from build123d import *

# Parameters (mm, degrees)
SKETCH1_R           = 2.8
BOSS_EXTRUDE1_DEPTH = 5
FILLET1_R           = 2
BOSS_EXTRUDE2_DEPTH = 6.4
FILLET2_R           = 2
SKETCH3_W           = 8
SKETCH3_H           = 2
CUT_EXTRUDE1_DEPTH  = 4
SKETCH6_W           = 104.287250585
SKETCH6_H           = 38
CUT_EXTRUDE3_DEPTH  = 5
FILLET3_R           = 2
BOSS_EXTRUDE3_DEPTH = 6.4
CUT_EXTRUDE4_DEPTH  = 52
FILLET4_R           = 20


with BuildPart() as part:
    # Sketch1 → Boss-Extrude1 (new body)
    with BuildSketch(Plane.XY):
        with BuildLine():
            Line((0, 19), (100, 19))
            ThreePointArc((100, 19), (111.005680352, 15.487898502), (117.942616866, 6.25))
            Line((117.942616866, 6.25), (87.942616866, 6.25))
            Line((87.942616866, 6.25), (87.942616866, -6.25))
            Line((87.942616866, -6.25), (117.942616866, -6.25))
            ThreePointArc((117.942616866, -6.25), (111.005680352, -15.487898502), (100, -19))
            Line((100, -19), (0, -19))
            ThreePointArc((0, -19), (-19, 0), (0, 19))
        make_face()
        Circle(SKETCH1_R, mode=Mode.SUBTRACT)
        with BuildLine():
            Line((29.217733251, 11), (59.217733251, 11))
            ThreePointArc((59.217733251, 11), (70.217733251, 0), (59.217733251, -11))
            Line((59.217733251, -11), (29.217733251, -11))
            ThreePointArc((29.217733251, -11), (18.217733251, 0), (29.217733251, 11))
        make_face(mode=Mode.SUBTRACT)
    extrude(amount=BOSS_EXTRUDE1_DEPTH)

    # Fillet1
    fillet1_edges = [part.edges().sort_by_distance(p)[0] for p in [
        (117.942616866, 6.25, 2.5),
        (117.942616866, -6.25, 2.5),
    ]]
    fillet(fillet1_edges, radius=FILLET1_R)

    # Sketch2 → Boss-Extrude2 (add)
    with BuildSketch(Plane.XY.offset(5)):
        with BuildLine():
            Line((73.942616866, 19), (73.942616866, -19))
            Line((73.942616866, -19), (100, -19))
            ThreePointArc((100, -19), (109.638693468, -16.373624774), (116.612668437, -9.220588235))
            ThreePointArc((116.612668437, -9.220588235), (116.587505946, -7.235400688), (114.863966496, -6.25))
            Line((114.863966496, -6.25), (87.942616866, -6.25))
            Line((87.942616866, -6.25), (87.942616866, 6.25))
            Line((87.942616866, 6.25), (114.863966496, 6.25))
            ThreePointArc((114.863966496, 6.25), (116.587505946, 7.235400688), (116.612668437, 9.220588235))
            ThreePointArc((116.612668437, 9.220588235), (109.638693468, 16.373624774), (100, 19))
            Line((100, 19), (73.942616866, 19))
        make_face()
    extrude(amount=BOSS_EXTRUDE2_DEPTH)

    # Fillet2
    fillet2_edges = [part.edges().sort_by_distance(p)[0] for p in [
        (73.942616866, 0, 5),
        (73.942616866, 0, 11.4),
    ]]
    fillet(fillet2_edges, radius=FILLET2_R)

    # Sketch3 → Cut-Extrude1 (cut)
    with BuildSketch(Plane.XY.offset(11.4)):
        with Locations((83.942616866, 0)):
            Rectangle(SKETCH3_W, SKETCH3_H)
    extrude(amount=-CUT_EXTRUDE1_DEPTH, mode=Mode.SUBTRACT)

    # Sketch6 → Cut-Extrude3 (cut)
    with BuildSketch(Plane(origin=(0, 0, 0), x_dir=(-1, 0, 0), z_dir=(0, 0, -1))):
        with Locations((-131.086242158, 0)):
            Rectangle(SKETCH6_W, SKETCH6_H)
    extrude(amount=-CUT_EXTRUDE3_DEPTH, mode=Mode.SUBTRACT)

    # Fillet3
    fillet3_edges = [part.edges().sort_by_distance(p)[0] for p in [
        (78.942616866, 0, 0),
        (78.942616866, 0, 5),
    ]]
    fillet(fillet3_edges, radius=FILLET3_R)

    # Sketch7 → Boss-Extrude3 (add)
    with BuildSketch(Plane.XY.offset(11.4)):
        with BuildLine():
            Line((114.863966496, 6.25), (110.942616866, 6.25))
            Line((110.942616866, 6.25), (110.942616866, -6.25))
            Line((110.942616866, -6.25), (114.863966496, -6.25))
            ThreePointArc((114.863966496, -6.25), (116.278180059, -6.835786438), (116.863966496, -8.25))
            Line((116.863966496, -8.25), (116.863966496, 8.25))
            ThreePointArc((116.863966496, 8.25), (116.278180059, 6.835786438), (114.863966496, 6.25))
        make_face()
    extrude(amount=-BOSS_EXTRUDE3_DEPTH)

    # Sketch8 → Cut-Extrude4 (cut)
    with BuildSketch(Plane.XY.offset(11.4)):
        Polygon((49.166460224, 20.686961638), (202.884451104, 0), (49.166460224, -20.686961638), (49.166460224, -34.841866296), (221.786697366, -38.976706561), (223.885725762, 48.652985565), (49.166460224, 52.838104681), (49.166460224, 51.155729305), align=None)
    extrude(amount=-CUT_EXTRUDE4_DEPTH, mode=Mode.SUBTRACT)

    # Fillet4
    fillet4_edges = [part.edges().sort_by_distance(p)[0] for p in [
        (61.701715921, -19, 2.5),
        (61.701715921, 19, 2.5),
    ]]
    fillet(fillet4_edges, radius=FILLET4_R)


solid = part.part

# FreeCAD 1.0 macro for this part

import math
import FreeCAD as App
import Part
import Sketcher

V = App.Vector
Q = App.Units.Quantity


def edges_at(feature, points):
    """Names of the edges that pass closest to the given points."""
    edges = feature.Shape.Edges
    near = lambda p: min(range(len(edges)), key=lambda i: edges[i].distToShape(Part.Vertex(*p))[0])
    return sorted({f"Edge{near(p) + 1}" for p in points})

doc = App.newDocument("Part")
params = doc.addObject("Spreadsheet::Sheet", "Params")
for row, (alias, value) in enumerate([
    ("sketch1_radius", "19 mm"),
    ("sketch1_radius2", "11 mm"),
    ("sketch1_diameter", "5.6 mm"),
    ("sketch1_width", "100 mm"),
    ("sketch1_width2", "30 mm"),
    ("pad1_length", "5 mm"),
    ("fillet_radius", "2 mm"),
    ("sketch2_radius", "19 mm"),
    ("sketch2_radius2", "2 mm"),
    ("sketch2_height", "12.5 mm"),
    ("pad2_length", "6.4 mm"),
    ("fillet2_radius", "2 mm"),
    ("sketch3_width", "8 mm"),
    ("sketch3_height", "2 mm"),
    ("pocket1_length", "4 mm"),
    ("sketch4_height", "38 mm"),
    ("pocket2_length", "5 mm"),
    ("fillet3_radius", "2 mm"),
    ("sketch5_radius", "2 mm"),
    ("sketch5_height", "12.5 mm"),
    ("pad3_length", "6.4 mm"),
    ("pocket3_length", "52 mm"),
    ("fillet4_radius", "20 mm"),
], start=1):
    params.set(f"A{row}", alias)
    params.set(f"B{row}", "=" + value)
    params.setAlias(f"B{row}", alias)

body = doc.addObject("PartDesign::Body", "Body")

sketch1 = doc.addObject("Sketcher::SketchObject", "Sketch")
body.addObject(sketch1)
sketch1.AttachmentSupport = (doc.XY_Plane, [""])
sketch1.MapMode = "FlatFace"
sketch1.addGeometry(Part.LineSegment(V(100, 19, 0), V(0, 19, 0)), False)
sketch1.addGeometry(Part.ArcOfCircle(Part.Circle(V(0, 0, 0), V(0, 0, 1), 19), math.radians(90), math.radians(270)), False)
sketch1.addGeometry(Part.LineSegment(V(0, -19, 0), V(100, -19, 0)), False)
sketch1.addGeometry(Part.ArcOfCircle(Part.Circle(V(100, 0, 0), V(0, 0, 1), 19), math.radians(-90), math.radians(-19.204897)), False)
sketch1.addGeometry(Part.LineSegment(V(117.942617, -6.25, 0), V(87.942617, -6.25, 0)), False)
sketch1.addGeometry(Part.LineSegment(V(87.942617, -6.25, 0), V(87.942617, 6.25, 0)), False)
sketch1.addGeometry(Part.LineSegment(V(87.942617, 6.25, 0), V(117.942617, 6.25, 0)), False)
sketch1.addGeometry(Part.ArcOfCircle(Part.Circle(V(100, 0, 0), V(0, 0, 1), 19), math.radians(19.204897), math.radians(90)), False)
sketch1.addGeometry(Part.LineSegment(V(29.217733, 11, 0), V(59.217733, 11, 0)), False)
sketch1.addGeometry(Part.ArcOfCircle(Part.Circle(V(59.217733, 0, 0), V(0, 0, 1), 11), math.radians(-90), math.radians(90)), False)
sketch1.addGeometry(Part.LineSegment(V(59.217733, -11, 0), V(29.217733, -11, 0)), False)
sketch1.addGeometry(Part.ArcOfCircle(Part.Circle(V(29.217733, 0, 0), V(0, 0, 1), 11), math.radians(90), math.radians(270)), False)
sketch1.addGeometry(Part.Circle(V(0, 0, 0), V(0, 0, 1), 2.8), False)
sketch1.addConstraint(Sketcher.Constraint("Tangent", 0, 2, 1, 1))
sketch1.addConstraint(Sketcher.Constraint("Tangent", 1, 2, 2, 1))
sketch1.addConstraint(Sketcher.Constraint("Tangent", 2, 2, 3, 1))
sketch1.addConstraint(Sketcher.Constraint("Coincident", 3, 2, 4, 1))
sketch1.addConstraint(Sketcher.Constraint("Coincident", 4, 2, 5, 1))
sketch1.addConstraint(Sketcher.Constraint("Coincident", 5, 2, 6, 1))
sketch1.addConstraint(Sketcher.Constraint("Coincident", 6, 2, 7, 1))
sketch1.addConstraint(Sketcher.Constraint("Tangent", 7, 2, 0, 1))
sketch1.addConstraint(Sketcher.Constraint("Tangent", 8, 2, 9, 2))
sketch1.addConstraint(Sketcher.Constraint("Tangent", 9, 1, 10, 1))
sketch1.addConstraint(Sketcher.Constraint("Tangent", 10, 2, 11, 2))
sketch1.addConstraint(Sketcher.Constraint("Tangent", 11, 1, 8, 1))
sketch1.addConstraint(Sketcher.Constraint("Horizontal", 0))
sketch1.addConstraint(Sketcher.Constraint("Horizontal", 2))
sketch1.addConstraint(Sketcher.Constraint("Horizontal", 4))
sketch1.addConstraint(Sketcher.Constraint("Vertical", 5))
sketch1.addConstraint(Sketcher.Constraint("Horizontal", 6))
sketch1.addConstraint(Sketcher.Constraint("Horizontal", 8))
sketch1.addConstraint(Sketcher.Constraint("Horizontal", 10))
sketch1.addConstraint(Sketcher.Constraint("Coincident", 1, 3, -1, 1))
sketch1.addConstraint(Sketcher.Constraint("Coincident", 12, 3, -1, 1))
sketch1.addConstraint(Sketcher.Constraint("Coincident", 7, 3, 3, 3))
sketch1.addConstraint(Sketcher.Constraint("Equal", 1, 3))
sketch1.addConstraint(Sketcher.Constraint("PointOnObject", 9, 3, -1))
sketch1.addConstraint(Sketcher.Constraint("Vertical", 3, 2, 6, 2))
sketch1.addConstraint(Sketcher.Constraint("Equal", 6, 8))
sketch1.addConstraint(Sketcher.Constraint("Radius", 1, Q("19 mm")))
sketch1.addConstraint(Sketcher.Constraint("Radius", 9, Q("11 mm")))
sketch1.addConstraint(Sketcher.Constraint("Diameter", 12, Q("5.6 mm")))
sketch1.addConstraint(Sketcher.Constraint("DistanceX", 0, 2, 0, 1, Q("100 mm")))
sketch1.addConstraint(Sketcher.Constraint("DistanceX", 4, 2, 4, 1, Q("30 mm")))
sketch1.addConstraint(Sketcher.Constraint("DistanceY", 5, 1, 5, 2, Q("12.5 mm")))
sketch1.addConstraint(Sketcher.Constraint("DistanceX", -1, 1, 9, 3, Q("59.217733 mm")))
sketch1.setExpression("Constraints[26]", "Params.sketch1_radius")
sketch1.setExpression("Constraints[27]", "Params.sketch1_radius2")
sketch1.setExpression("Constraints[28]", "Params.sketch1_diameter")
sketch1.setExpression("Constraints[29]", "Params.sketch1_width")
sketch1.setExpression("Constraints[30]", "Params.sketch1_width2")
pad1 = doc.addObject("PartDesign::Pad", "Pad")
body.addObject(pad1)
pad1.Profile = sketch1
pad1.setExpression("Length", "Params.pad1_length")
doc.recompute()

fillet = doc.addObject("PartDesign::Fillet", "Fillet")
body.addObject(fillet)
fillet.Base = (pad1, edges_at(pad1, [(117.943, 6.25, 2.5), (117.943, -6.25, 2.5)]))
fillet.setExpression("Radius", "Params.fillet_radius")

sketch2 = doc.addObject("Sketcher::SketchObject", "Sketch001")
body.addObject(sketch2)
sketch2.AttachmentSupport = (doc.XY_Plane, [""])
sketch2.MapMode = "FlatFace"
sketch2.AttachmentOffset = App.Placement(V(0, 0, 5), App.Rotation())
sketch2.addGeometry(Part.LineSegment(V(73.942617, 19, 0), V(73.942617, -19, 0)), False)
sketch2.addGeometry(Part.LineSegment(V(73.942617, -19, 0), V(100, -19, 0)), False)
sketch2.addGeometry(Part.ArcOfCircle(Part.Circle(V(100, 0, 0), V(0, 0, 1), 19), math.radians(-90), math.radians(-29.031744)), False)
sketch2.addGeometry(Part.ArcOfCircle(Part.Circle(V(114.863966, -8.25, 0), V(0, 0, 1), 2), math.radians(-29.031744), math.radians(90)), False)
sketch2.addGeometry(Part.LineSegment(V(114.863966, -6.25, 0), V(87.942617, -6.25, 0)), False)
sketch2.addGeometry(Part.LineSegment(V(87.942617, -6.25, 0), V(87.942617, 6.25, 0)), False)
sketch2.addGeometry(Part.LineSegment(V(87.942617, 6.25, 0), V(114.863966, 6.25, 0)), False)
sketch2.addGeometry(Part.ArcOfCircle(Part.Circle(V(114.863966, 8.25, 0), V(0, 0, 1), 2), math.radians(-90), math.radians(29.031744)), False)
sketch2.addGeometry(Part.ArcOfCircle(Part.Circle(V(100, 0, 0), V(0, 0, 1), 19), math.radians(29.031744), math.radians(90)), False)
sketch2.addGeometry(Part.LineSegment(V(100, 19, 0), V(73.942617, 19, 0)), False)
sketch2.addConstraint(Sketcher.Constraint("Coincident", 0, 2, 1, 1))
sketch2.addConstraint(Sketcher.Constraint("Tangent", 1, 2, 2, 1))
sketch2.addConstraint(Sketcher.Constraint("Tangent", 2, 2, 3, 1))
sketch2.addConstraint(Sketcher.Constraint("Tangent", 3, 2, 4, 1))
sketch2.addConstraint(Sketcher.Constraint("Coincident", 4, 2, 5, 1))
sketch2.addConstraint(Sketcher.Constraint("Coincident", 5, 2, 6, 1))
sketch2.addConstraint(Sketcher.Constraint("Tangent", 6, 2, 7, 1))
sketch2.addConstraint(Sketcher.Constraint("Tangent", 7, 2, 8, 1))
sketch2.addConstraint(Sketcher.Constraint("Tangent", 8, 2, 9, 1))
sketch2.addConstraint(Sketcher.Constraint("Coincident", 9, 2, 0, 1))
sketch2.addConstraint(Sketcher.Constraint("Vertical", 0))
sketch2.addConstraint(Sketcher.Constraint("Horizontal", 1))
sketch2.addConstraint(Sketcher.Constraint("Horizontal", 4))
sketch2.addConstraint(Sketcher.Constraint("Vertical", 5))
sketch2.addConstraint(Sketcher.Constraint("Horizontal", 6))
sketch2.addConstraint(Sketcher.Constraint("Horizontal", 9))
sketch2.addConstraint(Sketcher.Constraint("Coincident", 8, 3, 2, 3))
sketch2.addConstraint(Sketcher.Constraint("Equal", 3, 7))
sketch2.addConstraint(Sketcher.Constraint("Equal", 2, 8))
sketch2.addConstraint(Sketcher.Constraint("Symmetric", 3, 3, 7, 3, -1))
sketch2.addConstraint(Sketcher.Constraint("Radius", 2, Q("19 mm")))
sketch2.addConstraint(Sketcher.Constraint("Radius", 3, Q("2 mm")))
sketch2.addConstraint(Sketcher.Constraint("DistanceY", 5, 1, 5, 2, Q("12.5 mm")))
sketch2.addConstraint(Sketcher.Constraint("DistanceX", -1, 1, 2, 3, Q("100 mm")))
sketch2.addConstraint(Sketcher.Constraint("DistanceX", 0, 2, 4, 2, Q("14 mm")))
sketch2.addConstraint(Sketcher.Constraint("DistanceX", 4, 2, 4, 1, Q("26.92135 mm")))
sketch2.setExpression("Constraints[20]", "Params.sketch2_radius")
sketch2.setExpression("Constraints[21]", "Params.sketch2_radius2")
sketch2.setExpression("Constraints[22]", "Params.sketch2_height")
pad2 = doc.addObject("PartDesign::Pad", "Pad001")
body.addObject(pad2)
pad2.Profile = sketch2
pad2.setExpression("Length", "Params.pad2_length")
doc.recompute()

fillet2 = doc.addObject("PartDesign::Fillet", "Fillet001")
body.addObject(fillet2)
fillet2.Base = (pad2, edges_at(pad2, [(73.943, 0, 5), (73.943, 0, 11.4)]))
fillet2.setExpression("Radius", "Params.fillet2_radius")

sketch3 = doc.addObject("Sketcher::SketchObject", "Sketch002")
body.addObject(sketch3)
sketch3.AttachmentSupport = (doc.XY_Plane, [""])
sketch3.MapMode = "FlatFace"
sketch3.AttachmentOffset = App.Placement(V(0, 0, 11.4), App.Rotation())
sketch3.addGeometry(Part.LineSegment(V(79.942617, 1, 0), V(79.942617, -1, 0)), False)
sketch3.addGeometry(Part.LineSegment(V(79.942617, -1, 0), V(87.942617, -1, 0)), False)
sketch3.addGeometry(Part.LineSegment(V(87.942617, -1, 0), V(87.942617, 1, 0)), False)
sketch3.addGeometry(Part.LineSegment(V(87.942617, 1, 0), V(79.942617, 1, 0)), False)
sketch3.addConstraint(Sketcher.Constraint("Coincident", 0, 2, 1, 1))
sketch3.addConstraint(Sketcher.Constraint("Coincident", 1, 2, 2, 1))
sketch3.addConstraint(Sketcher.Constraint("Coincident", 2, 2, 3, 1))
sketch3.addConstraint(Sketcher.Constraint("Coincident", 3, 2, 0, 1))
sketch3.addConstraint(Sketcher.Constraint("Vertical", 0))
sketch3.addConstraint(Sketcher.Constraint("Horizontal", 1))
sketch3.addConstraint(Sketcher.Constraint("Vertical", 2))
sketch3.addConstraint(Sketcher.Constraint("Horizontal", 3))
sketch3.addConstraint(Sketcher.Constraint("DistanceX", 1, 1, 1, 2, Q("8 mm")))
sketch3.addConstraint(Sketcher.Constraint("DistanceY", 0, 2, 0, 1, Q("2 mm")))
sketch3.addConstraint(Sketcher.Constraint("DistanceY", 0, 2, -1, 1, Q("1 mm")))
sketch3.addConstraint(Sketcher.Constraint("DistanceX", -1, 1, 0, 2, Q("79.942617 mm")))
sketch3.setExpression("Constraints[8]", "Params.sketch3_width")
sketch3.setExpression("Constraints[9]", "Params.sketch3_height")
pocket1 = doc.addObject("PartDesign::Pocket", "Pocket")
body.addObject(pocket1)
pocket1.Profile = sketch3
pocket1.setExpression("Length", "Params.pocket1_length")

sketch4 = doc.addObject("Sketcher::SketchObject", "Sketch003")
body.addObject(sketch4)
sketch4.AttachmentSupport = (doc.XY_Plane, [""])
sketch4.MapMode = "FlatFace"
sketch4.addGeometry(Part.LineSegment(V(183.229867, 19, 0), V(183.229867, -19, 0)), False)
sketch4.addGeometry(Part.LineSegment(V(183.229867, -19, 0), V(78.942617, -19, 0)), False)
sketch4.addGeometry(Part.LineSegment(V(78.942617, -19, 0), V(78.942617, 19, 0)), False)
sketch4.addGeometry(Part.LineSegment(V(78.942617, 19, 0), V(183.229867, 19, 0)), False)
sketch4.addConstraint(Sketcher.Constraint("Coincident", 0, 2, 1, 1))
sketch4.addConstraint(Sketcher.Constraint("Coincident", 1, 2, 2, 1))
sketch4.addConstraint(Sketcher.Constraint("Coincident", 2, 2, 3, 1))
sketch4.addConstraint(Sketcher.Constraint("Coincident", 3, 2, 0, 1))
sketch4.addConstraint(Sketcher.Constraint("Vertical", 0))
sketch4.addConstraint(Sketcher.Constraint("Horizontal", 1))
sketch4.addConstraint(Sketcher.Constraint("Vertical", 2))
sketch4.addConstraint(Sketcher.Constraint("Horizontal", 3))
sketch4.addConstraint(Sketcher.Constraint("DistanceY", 0, 2, 0, 1, Q("38 mm")))
sketch4.addConstraint(Sketcher.Constraint("DistanceY", 0, 2, -1, 1, Q("19 mm")))
sketch4.addConstraint(Sketcher.Constraint("DistanceX", 1, 2, 1, 1, Q("104.287251 mm")))
sketch4.addConstraint(Sketcher.Constraint("DistanceX", -1, 1, 0, 2, Q("183.229867 mm")))
sketch4.setExpression("Constraints[8]", "Params.sketch4_height")
pocket2 = doc.addObject("PartDesign::Pocket", "Pocket001")
body.addObject(pocket2)
pocket2.Profile = sketch4
pocket2.setExpression("Length", "Params.pocket2_length")
pocket2.Reversed = True
doc.recompute()

fillet3 = doc.addObject("PartDesign::Fillet", "Fillet002")
body.addObject(fillet3)
fillet3.Base = (pocket2, edges_at(pocket2, [(78.943, 0, 0), (78.943, 0, 5)]))
fillet3.setExpression("Radius", "Params.fillet3_radius")

sketch5 = doc.addObject("Sketcher::SketchObject", "Sketch004")
body.addObject(sketch5)
sketch5.AttachmentSupport = (doc.XY_Plane, [""])
sketch5.MapMode = "FlatFace"
sketch5.AttachmentOffset = App.Placement(V(0, 0, 11.4), App.Rotation())
sketch5.addGeometry(Part.LineSegment(V(114.863966, 6.25, 0), V(110.942617, 6.25, 0)), False)
sketch5.addGeometry(Part.LineSegment(V(110.942617, 6.25, 0), V(110.942617, -6.25, 0)), False)
sketch5.addGeometry(Part.LineSegment(V(110.942617, -6.25, 0), V(114.863966, -6.25, 0)), False)
sketch5.addGeometry(Part.ArcOfCircle(Part.Circle(V(114.863966, -8.25, 0), V(0, 0, 1), 2), math.radians(0), math.radians(90)), False)
sketch5.addGeometry(Part.LineSegment(V(116.863966, -8.25, 0), V(116.863966, 8.25, 0)), False)
sketch5.addGeometry(Part.ArcOfCircle(Part.Circle(V(114.863966, 8.25, 0), V(0, 0, 1), 2), math.radians(-90), math.radians(0)), False)
sketch5.addConstraint(Sketcher.Constraint("Coincident", 0, 2, 1, 1))
sketch5.addConstraint(Sketcher.Constraint("Coincident", 1, 2, 2, 1))
sketch5.addConstraint(Sketcher.Constraint("Tangent", 2, 2, 3, 2))
sketch5.addConstraint(Sketcher.Constraint("Tangent", 3, 1, 4, 1))
sketch5.addConstraint(Sketcher.Constraint("Tangent", 4, 2, 5, 2))
sketch5.addConstraint(Sketcher.Constraint("Tangent", 5, 1, 0, 1))
sketch5.addConstraint(Sketcher.Constraint("Horizontal", 0))
sketch5.addConstraint(Sketcher.Constraint("Vertical", 1))
sketch5.addConstraint(Sketcher.Constraint("Horizontal", 2))
sketch5.addConstraint(Sketcher.Constraint("Vertical", 4))
sketch5.addConstraint(Sketcher.Constraint("Equal", 3, 5))
sketch5.addConstraint(Sketcher.Constraint("Radius", 3, Q("2 mm")))
sketch5.addConstraint(Sketcher.Constraint("DistanceY", 1, 2, 1, 1, Q("12.5 mm")))
sketch5.addConstraint(Sketcher.Constraint("DistanceY", 3, 3, -1, 1, Q("8.25 mm")))
sketch5.addConstraint(Sketcher.Constraint("DistanceX", 0, 2, 0, 1, Q("3.92135 mm")))
sketch5.addConstraint(Sketcher.Constraint("DistanceX", -1, 1, 3, 3, Q("114.863966 mm")))
sketch5.setExpression("Constraints[11]", "Params.sketch5_radius")
sketch5.setExpression("Constraints[12]", "Params.sketch5_height")
pad3 = doc.addObject("PartDesign::Pad", "Pad002")
body.addObject(pad3)
pad3.Profile = sketch5
pad3.setExpression("Length", "Params.pad3_length")
pad3.Reversed = True

sketch6 = doc.addObject("Sketcher::SketchObject", "Sketch005")
body.addObject(sketch6)
sketch6.AttachmentSupport = (doc.XY_Plane, [""])
sketch6.MapMode = "FlatFace"
sketch6.AttachmentOffset = App.Placement(V(0, 0, 11.4), App.Rotation())
sketch6.addGeometry(Part.LineSegment(V(49.16646, 20.686962, 0), V(202.884451, 0, 0)), False)
sketch6.addGeometry(Part.LineSegment(V(202.884451, 0, 0), V(49.16646, -20.686962, 0)), False)
sketch6.addGeometry(Part.LineSegment(V(49.16646, -20.686962, 0), V(49.16646, -34.841866, 0)), False)
sketch6.addGeometry(Part.LineSegment(V(49.16646, -34.841866, 0), V(221.786697, -38.976707, 0)), False)
sketch6.addGeometry(Part.LineSegment(V(221.786697, -38.976707, 0), V(223.885726, 48.652986, 0)), False)
sketch6.addGeometry(Part.LineSegment(V(223.885726, 48.652986, 0), V(49.16646, 52.838105, 0)), False)
sketch6.addGeometry(Part.LineSegment(V(49.16646, 52.838105, 0), V(49.16646, 20.686962, 0)), False)
sketch6.addConstraint(Sketcher.Constraint("Coincident", 0, 2, 1, 1))
sketch6.addConstraint(Sketcher.Constraint("Coincident", 1, 2, 2, 1))
sketch6.addConstraint(Sketcher.Constraint("Coincident", 2, 2, 3, 1))
sketch6.addConstraint(Sketcher.Constraint("Coincident", 3, 2, 4, 1))
sketch6.addConstraint(Sketcher.Constraint("Coincident", 4, 2, 5, 1))
sketch6.addConstraint(Sketcher.Constraint("Coincident", 5, 2, 6, 1))
sketch6.addConstraint(Sketcher.Constraint("Coincident", 6, 2, 0, 1))
sketch6.addConstraint(Sketcher.Constraint("Vertical", 2))
sketch6.addConstraint(Sketcher.Constraint("Vertical", 6))
sketch6.addConstraint(Sketcher.Constraint("Symmetric", 1, 2, 6, 2, -1))
sketch6.addConstraint(Sketcher.Constraint("PointOnObject", 0, 2, -1))
sketch6.addConstraint(Sketcher.Constraint("Perpendicular", 3, 4))
sketch6.addConstraint(Sketcher.Constraint("Perpendicular", 4, 5))
sketch6.addConstraint(Sketcher.Constraint("Distance", 3, Q("172.669752 mm")))
sketch6.addConstraint(Sketcher.Constraint("DistanceY", 2, 2, 2, 1, Q("14.154905 mm")))
sketch6.addConstraint(Sketcher.Constraint("DistanceY", 6, 2, 6, 1, Q("32.151143 mm")))
sketch6.addConstraint(Sketcher.Constraint("DistanceX", -1, 1, 0, 2, Q("202.884451 mm")))
sketch6.addConstraint(Sketcher.Constraint("DistanceX", -1, 1, 1, 2, Q("49.16646 mm")))
sketch6.addConstraint(Sketcher.Constraint("DistanceY", 1, 2, -1, 1, Q("20.686962 mm")))
sketch6.addConstraint(Sketcher.Constraint("DistanceY", 3, 2, 2, 2, Q("4.13484 mm")))
pocket3 = doc.addObject("PartDesign::Pocket", "Pocket002")
body.addObject(pocket3)
pocket3.Profile = sketch6
pocket3.setExpression("Length", "Params.pocket3_length")
doc.recompute()

fillet4 = doc.addObject("PartDesign::Fillet", "Fillet003")
body.addObject(fillet4)
fillet4.Base = (pocket3, edges_at(pocket3, [(61.702, -19, 2.5), (61.702, 19, 2.5)]))
fillet4.setExpression("Radius", "Params.fillet4_radius")

doc.recompute()
